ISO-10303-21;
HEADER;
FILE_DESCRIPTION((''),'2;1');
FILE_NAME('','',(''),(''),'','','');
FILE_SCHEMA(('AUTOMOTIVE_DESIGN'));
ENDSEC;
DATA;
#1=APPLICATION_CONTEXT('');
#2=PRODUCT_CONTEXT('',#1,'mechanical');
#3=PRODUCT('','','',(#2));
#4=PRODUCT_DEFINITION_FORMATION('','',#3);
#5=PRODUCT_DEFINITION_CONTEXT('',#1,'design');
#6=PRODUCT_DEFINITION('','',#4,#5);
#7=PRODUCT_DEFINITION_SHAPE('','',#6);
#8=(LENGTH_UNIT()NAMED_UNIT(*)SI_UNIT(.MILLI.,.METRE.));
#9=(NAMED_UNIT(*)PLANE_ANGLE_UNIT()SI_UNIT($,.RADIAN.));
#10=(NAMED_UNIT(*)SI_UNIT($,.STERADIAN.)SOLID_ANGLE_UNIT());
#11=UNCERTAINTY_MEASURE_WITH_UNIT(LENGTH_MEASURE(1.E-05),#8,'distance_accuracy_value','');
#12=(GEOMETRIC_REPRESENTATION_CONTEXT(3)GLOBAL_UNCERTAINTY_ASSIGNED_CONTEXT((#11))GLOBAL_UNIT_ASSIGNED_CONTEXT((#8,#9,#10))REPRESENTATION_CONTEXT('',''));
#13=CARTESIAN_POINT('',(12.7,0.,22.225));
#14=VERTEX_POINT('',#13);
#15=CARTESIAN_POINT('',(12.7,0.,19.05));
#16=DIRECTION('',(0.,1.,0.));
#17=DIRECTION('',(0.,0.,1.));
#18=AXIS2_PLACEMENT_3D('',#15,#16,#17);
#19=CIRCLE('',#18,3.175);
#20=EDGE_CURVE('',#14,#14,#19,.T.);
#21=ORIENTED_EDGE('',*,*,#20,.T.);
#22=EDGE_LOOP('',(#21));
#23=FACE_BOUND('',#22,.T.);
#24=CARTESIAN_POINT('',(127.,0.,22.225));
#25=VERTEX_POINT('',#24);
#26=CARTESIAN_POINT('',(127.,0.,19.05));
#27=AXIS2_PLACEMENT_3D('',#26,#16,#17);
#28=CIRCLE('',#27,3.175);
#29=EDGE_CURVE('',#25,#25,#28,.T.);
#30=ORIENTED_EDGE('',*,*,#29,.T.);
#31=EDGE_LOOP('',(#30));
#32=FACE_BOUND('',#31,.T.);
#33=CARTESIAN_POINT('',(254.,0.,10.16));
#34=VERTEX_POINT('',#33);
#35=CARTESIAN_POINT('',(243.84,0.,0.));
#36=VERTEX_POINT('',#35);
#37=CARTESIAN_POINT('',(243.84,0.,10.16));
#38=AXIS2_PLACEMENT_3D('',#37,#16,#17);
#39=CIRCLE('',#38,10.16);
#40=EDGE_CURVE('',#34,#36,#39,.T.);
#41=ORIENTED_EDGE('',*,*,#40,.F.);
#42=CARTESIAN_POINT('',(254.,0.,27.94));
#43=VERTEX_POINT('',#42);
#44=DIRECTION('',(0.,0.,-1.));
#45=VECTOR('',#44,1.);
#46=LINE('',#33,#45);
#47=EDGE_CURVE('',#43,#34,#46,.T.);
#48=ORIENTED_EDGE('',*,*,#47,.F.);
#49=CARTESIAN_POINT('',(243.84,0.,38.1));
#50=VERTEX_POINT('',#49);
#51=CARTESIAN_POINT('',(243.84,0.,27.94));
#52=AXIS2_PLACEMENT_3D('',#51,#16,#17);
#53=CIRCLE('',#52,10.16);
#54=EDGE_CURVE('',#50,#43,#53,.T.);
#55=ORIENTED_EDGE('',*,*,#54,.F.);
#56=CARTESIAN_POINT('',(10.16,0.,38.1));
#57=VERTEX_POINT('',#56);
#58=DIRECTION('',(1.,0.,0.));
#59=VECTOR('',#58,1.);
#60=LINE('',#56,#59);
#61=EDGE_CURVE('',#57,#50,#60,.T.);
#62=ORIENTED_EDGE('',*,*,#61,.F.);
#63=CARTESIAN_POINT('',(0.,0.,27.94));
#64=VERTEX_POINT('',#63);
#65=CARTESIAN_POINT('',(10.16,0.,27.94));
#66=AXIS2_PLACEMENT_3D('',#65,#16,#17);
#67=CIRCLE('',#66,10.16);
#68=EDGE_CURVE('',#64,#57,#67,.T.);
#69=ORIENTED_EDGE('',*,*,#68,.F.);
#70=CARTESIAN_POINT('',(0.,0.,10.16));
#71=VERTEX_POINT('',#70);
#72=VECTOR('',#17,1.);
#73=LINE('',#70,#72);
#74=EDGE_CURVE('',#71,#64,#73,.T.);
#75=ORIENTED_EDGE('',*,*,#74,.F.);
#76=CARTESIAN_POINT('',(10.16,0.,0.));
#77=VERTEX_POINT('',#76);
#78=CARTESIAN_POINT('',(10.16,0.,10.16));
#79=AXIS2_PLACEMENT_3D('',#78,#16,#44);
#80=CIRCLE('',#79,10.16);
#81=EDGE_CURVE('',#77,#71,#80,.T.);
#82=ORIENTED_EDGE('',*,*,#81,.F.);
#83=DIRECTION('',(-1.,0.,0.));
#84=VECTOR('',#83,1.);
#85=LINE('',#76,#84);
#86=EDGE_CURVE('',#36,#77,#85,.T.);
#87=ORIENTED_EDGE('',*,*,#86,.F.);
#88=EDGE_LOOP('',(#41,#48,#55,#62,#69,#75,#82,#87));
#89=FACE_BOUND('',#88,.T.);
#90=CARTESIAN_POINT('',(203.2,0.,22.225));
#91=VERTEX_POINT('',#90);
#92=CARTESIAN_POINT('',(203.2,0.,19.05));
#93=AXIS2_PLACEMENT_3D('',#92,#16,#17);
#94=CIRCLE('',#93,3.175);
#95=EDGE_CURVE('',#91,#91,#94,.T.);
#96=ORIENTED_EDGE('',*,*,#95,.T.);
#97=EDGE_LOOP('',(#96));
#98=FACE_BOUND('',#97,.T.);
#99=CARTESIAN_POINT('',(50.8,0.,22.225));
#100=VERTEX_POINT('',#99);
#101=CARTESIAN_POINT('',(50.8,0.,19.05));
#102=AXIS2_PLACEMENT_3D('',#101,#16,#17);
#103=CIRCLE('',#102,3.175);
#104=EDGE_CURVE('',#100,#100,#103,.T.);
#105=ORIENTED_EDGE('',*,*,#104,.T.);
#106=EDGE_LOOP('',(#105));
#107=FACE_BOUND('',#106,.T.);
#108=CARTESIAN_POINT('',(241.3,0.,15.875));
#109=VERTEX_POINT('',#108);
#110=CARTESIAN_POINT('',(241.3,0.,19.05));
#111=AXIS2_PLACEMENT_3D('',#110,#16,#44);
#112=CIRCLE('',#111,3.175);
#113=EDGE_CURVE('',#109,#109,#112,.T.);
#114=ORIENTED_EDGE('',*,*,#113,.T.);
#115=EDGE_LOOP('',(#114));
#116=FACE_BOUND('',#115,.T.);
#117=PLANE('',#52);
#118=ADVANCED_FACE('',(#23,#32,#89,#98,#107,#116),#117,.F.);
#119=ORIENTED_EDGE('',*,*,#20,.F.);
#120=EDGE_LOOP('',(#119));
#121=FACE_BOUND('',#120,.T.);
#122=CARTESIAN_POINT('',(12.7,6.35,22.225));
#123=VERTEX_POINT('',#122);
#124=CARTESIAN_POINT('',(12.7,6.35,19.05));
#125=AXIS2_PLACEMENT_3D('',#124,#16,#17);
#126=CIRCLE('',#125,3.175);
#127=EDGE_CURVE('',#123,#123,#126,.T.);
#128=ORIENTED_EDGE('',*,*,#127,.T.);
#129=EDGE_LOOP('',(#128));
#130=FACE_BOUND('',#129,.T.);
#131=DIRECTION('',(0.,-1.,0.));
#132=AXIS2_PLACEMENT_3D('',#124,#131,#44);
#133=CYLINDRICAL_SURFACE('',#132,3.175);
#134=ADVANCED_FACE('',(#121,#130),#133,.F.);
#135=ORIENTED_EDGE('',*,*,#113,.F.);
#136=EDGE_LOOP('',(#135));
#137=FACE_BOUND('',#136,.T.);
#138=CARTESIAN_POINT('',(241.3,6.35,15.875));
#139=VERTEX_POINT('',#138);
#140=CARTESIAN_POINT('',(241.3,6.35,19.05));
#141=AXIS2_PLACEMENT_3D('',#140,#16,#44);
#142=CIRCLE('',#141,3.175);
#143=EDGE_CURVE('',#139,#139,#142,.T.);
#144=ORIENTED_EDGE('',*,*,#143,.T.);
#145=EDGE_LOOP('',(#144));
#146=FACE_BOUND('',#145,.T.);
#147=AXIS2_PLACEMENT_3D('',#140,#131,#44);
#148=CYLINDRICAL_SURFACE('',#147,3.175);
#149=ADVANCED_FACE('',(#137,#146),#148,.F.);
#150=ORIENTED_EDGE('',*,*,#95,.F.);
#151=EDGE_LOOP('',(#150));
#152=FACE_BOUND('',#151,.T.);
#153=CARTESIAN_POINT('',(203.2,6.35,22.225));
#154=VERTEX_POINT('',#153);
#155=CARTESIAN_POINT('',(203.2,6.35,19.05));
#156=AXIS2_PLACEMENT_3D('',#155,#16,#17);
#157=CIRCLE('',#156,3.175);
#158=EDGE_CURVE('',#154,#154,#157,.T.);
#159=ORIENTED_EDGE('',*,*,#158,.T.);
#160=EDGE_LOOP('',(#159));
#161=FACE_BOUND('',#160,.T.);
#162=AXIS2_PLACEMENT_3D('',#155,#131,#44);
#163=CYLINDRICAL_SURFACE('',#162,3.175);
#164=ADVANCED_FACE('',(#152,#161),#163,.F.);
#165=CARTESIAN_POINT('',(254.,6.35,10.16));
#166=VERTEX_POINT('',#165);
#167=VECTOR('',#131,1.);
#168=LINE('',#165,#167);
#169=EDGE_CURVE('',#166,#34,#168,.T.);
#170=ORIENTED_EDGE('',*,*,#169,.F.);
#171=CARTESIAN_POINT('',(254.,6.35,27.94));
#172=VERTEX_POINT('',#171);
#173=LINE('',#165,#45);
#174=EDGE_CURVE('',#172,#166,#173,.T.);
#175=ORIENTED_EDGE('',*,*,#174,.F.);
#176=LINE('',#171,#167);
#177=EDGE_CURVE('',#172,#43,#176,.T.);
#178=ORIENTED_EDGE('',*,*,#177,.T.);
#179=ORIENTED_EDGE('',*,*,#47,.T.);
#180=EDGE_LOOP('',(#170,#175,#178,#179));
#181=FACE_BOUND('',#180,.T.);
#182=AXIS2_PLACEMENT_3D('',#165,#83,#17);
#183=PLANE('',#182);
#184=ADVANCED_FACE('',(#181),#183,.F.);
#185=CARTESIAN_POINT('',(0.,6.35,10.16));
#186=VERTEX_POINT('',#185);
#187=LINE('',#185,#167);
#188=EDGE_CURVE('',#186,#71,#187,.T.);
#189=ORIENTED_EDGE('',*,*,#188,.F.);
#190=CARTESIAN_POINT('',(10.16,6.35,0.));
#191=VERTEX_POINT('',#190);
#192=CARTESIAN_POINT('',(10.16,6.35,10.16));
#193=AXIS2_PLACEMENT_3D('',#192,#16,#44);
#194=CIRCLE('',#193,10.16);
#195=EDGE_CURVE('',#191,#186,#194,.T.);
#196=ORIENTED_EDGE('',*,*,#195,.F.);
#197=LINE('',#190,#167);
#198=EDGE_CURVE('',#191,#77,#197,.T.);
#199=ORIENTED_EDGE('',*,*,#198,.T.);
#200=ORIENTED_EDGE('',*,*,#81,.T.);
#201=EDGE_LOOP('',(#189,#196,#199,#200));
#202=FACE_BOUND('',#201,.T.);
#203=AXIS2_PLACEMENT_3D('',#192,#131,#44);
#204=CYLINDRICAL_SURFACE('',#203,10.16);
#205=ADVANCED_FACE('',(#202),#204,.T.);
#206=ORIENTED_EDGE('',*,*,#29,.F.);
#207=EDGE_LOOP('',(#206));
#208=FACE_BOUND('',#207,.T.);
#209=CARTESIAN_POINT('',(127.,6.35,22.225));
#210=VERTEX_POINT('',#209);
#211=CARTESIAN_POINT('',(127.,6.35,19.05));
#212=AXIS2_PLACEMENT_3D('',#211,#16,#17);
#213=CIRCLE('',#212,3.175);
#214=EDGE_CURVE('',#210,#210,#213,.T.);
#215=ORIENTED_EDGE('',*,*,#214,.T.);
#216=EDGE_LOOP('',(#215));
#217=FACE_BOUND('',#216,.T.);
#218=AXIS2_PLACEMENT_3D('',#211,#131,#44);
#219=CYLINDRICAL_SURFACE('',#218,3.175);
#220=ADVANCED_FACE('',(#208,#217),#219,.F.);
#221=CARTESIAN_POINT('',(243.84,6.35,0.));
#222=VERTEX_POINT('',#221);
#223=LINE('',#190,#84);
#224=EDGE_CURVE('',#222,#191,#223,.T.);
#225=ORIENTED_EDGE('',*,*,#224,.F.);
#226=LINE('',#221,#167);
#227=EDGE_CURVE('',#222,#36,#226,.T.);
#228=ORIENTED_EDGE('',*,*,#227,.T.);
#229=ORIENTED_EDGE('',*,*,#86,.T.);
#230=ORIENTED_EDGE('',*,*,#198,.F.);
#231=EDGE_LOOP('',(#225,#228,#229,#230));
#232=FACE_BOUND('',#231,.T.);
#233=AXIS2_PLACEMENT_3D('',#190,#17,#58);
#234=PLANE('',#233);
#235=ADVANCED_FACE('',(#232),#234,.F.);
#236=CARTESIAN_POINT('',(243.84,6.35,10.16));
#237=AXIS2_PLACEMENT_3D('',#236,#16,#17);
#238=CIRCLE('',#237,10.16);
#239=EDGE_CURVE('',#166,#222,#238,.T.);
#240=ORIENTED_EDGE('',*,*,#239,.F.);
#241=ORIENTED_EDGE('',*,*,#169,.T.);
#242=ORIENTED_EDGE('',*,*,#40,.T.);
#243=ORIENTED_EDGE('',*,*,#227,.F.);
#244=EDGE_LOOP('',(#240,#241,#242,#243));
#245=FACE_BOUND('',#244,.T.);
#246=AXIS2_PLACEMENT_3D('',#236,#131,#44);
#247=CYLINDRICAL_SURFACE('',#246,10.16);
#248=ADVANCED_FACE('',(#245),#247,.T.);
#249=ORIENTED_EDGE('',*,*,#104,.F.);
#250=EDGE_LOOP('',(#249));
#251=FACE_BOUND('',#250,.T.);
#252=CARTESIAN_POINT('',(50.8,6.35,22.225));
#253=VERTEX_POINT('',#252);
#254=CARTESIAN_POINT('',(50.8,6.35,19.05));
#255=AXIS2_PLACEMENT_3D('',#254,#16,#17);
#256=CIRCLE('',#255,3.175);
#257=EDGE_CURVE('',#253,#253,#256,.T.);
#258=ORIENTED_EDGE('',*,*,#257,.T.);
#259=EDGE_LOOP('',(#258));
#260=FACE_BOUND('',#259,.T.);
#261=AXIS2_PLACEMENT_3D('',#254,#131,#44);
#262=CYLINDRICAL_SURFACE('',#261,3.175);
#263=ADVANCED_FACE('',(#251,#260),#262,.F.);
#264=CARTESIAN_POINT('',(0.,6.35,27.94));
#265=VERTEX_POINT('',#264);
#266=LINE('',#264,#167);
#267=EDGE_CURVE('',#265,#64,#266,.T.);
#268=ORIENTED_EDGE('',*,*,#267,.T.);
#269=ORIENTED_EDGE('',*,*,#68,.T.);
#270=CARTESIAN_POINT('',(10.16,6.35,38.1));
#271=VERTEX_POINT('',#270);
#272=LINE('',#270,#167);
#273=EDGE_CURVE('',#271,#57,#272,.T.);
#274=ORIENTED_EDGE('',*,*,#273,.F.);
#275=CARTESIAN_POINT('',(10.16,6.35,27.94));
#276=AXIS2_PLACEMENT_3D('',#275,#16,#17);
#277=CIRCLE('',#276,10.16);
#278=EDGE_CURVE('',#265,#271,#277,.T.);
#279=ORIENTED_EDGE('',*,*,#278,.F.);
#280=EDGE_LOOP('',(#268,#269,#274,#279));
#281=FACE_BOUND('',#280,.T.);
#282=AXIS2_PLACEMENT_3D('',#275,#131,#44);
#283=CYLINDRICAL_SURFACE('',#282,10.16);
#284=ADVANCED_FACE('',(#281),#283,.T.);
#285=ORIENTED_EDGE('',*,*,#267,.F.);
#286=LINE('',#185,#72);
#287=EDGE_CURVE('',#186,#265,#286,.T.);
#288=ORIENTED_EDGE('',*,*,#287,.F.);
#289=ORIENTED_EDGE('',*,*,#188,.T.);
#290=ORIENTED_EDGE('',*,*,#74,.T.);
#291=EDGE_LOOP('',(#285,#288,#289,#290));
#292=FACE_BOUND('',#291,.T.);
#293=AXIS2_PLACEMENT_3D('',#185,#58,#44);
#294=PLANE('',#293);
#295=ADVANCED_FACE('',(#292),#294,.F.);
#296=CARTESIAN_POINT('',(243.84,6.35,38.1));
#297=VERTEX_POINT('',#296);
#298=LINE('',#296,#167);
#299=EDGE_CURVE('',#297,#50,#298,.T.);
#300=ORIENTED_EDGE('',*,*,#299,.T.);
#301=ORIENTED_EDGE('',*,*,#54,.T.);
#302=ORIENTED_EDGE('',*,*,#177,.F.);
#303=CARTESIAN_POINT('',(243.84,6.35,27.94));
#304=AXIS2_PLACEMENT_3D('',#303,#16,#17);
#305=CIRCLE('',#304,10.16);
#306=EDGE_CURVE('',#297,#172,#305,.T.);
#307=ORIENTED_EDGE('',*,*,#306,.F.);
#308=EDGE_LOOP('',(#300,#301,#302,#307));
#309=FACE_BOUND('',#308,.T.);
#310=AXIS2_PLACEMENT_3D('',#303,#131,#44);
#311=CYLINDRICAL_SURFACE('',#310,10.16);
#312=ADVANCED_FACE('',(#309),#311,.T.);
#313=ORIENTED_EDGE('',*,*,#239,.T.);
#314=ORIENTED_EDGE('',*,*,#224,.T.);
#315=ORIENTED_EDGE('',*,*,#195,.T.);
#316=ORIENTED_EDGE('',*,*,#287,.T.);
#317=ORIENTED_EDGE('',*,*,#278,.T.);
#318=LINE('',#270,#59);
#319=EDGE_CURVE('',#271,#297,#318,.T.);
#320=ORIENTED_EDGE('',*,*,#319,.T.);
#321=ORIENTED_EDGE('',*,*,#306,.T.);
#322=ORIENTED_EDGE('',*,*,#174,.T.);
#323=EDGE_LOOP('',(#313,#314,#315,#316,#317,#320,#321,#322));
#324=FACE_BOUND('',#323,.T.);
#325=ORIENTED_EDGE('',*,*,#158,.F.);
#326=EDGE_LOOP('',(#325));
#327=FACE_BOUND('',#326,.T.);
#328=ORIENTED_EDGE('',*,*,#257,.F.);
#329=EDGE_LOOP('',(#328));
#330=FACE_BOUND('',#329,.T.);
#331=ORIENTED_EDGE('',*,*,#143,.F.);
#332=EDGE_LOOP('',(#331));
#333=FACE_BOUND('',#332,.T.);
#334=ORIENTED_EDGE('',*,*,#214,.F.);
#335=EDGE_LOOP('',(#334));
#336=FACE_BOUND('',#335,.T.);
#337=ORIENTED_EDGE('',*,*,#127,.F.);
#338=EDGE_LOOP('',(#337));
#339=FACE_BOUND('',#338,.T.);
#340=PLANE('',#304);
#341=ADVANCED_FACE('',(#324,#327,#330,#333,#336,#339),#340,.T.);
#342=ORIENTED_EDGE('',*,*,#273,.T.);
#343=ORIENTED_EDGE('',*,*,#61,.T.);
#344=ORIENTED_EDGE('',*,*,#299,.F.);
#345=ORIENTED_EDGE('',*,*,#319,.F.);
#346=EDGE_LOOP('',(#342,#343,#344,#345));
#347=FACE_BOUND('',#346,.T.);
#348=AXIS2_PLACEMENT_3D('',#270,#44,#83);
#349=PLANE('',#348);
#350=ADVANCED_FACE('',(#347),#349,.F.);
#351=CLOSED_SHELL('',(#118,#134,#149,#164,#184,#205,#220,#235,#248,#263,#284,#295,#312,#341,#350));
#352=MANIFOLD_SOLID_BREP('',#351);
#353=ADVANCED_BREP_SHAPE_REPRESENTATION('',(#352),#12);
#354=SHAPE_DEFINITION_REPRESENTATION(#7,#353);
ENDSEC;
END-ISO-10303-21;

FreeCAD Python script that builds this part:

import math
import FreeCAD as App
import Part
import Sketcher

V = App.Vector
Q = App.Units.Quantity

doc = App.newDocument("Part")
body = doc.addObject("PartDesign::Body", "Body")

# Sketch on XZ plane
sketch1 = doc.addObject("Sketcher::SketchObject", "Sketch")
body.addObject(sketch1)
sketch1.AttachmentSupport = (doc.XZ_Plane, [""])
sketch1.MapMode = "FlatFace"
sketch1.addGeometry(Part.LineSegment(V(243.8, 0, 0), V(10.2, 0, 0)), False)
sketch1.addGeometry(Part.ArcOfCircle(Part.Circle(V(10.2, 10.2, 0), V(0, 0, 1), 10.2), math.radians(180), math.radians(270)), False)
sketch1.addGeometry(Part.LineSegment(V(0, 10.2, 0), V(0, 27.9, 0)), False)
sketch1.addGeometry(Part.ArcOfCircle(Part.Circle(V(10.2, 27.9, 0), V(0, 0, 1), 10.2), math.radians(90), math.radians(180)), False)
sketch1.addGeometry(Part.LineSegment(V(10.2, 38.1, 0), V(243.8, 38.1, 0)), False)
sketch1.addGeometry(Part.ArcOfCircle(Part.Circle(V(243.8, 27.9, 0), V(0, 0, 1), 10.2), math.radians(0), math.radians(90)), False)
sketch1.addGeometry(Part.LineSegment(V(254, 27.9, 0), V(254, 10.2, 0)), False)
sketch1.addGeometry(Part.ArcOfCircle(Part.Circle(V(243.8, 10.2, 0), V(0, 0, 1), 10.2), math.radians(-90), math.radians(0)), False)
sketch1.addGeometry(Part.Circle(V(241.3, 19.1, 0), V(0, 0, 1), 3.2), False)
sketch1.addGeometry(Part.Circle(V(203.2, 19.1, 0), V(0, 0, 1), 3.2), False)
sketch1.addGeometry(Part.Circle(V(127, 19.1, 0), V(0, 0, 1), 3.2), False)
sketch1.addGeometry(Part.Circle(V(50.8, 19.1, 0), V(0, 0, 1), 3.2), False)
sketch1.addGeometry(Part.Circle(V(12.7, 19.1, 0), V(0, 0, 1), 3.2), False)
sketch1.addConstraint(Sketcher.Constraint("Tangent", 0, 2, 1, 2))
sketch1.addConstraint(Sketcher.Constraint("Tangent", 1, 1, 2, 1))
sketch1.addConstraint(Sketcher.Constraint("Tangent", 2, 2, 3, 2))
sketch1.addConstraint(Sketcher.Constraint("Tangent", 3, 1, 4, 1))
sketch1.addConstraint(Sketcher.Constraint("Tangent", 4, 2, 5, 2))
sketch1.addConstraint(Sketcher.Constraint("Tangent", 5, 1, 6, 1))
sketch1.addConstraint(Sketcher.Constraint("Tangent", 6, 2, 7, 2))
sketch1.addConstraint(Sketcher.Constraint("Tangent", 7, 1, 0, 1))
sketch1.addConstraint(Sketcher.Constraint("Horizontal", 0))
sketch1.addConstraint(Sketcher.Constraint("Vertical", 2))
sketch1.addConstraint(Sketcher.Constraint("Horizontal", 4))
sketch1.addConstraint(Sketcher.Constraint("Vertical", 6))
sketch1.addConstraint(Sketcher.Constraint("Equal", 1, 3))
sketch1.addConstraint(Sketcher.Constraint("Equal", 3, 5))
sketch1.addConstraint(Sketcher.Constraint("Equal", 5, 7))
sketch1.addConstraint(Sketcher.Constraint("Equal", 8, 9))
sketch1.addConstraint(Sketcher.Constraint("Equal", 9, 10))
sketch1.addConstraint(Sketcher.Constraint("Equal", 10, 11))
sketch1.addConstraint(Sketcher.Constraint("Equal", 11, 12))
sketch1.addConstraint(Sketcher.Constraint("PointOnObject", 0, 2, -1))
sketch1.addConstraint(Sketcher.Constraint("PointOnObject", 1, 1, -2))
sketch1.addConstraint(Sketcher.Constraint("Horizontal", 8, 3, 9, 3))
sketch1.addConstraint(Sketcher.Constraint("Horizontal", 9, 3, 10, 3))
sketch1.addConstraint(Sketcher.Constraint("Horizontal", 10, 3, 11, 3))
sketch1.addConstraint(Sketcher.Constraint("Horizontal", 11, 3, 12, 3))
sketch1.addConstraint(Sketcher.Constraint("Radius", 1, Q("0.4 in")))
sketch1.addConstraint(Sketcher.Constraint("Diameter", 8, Q("0.25 in")))
sketch1.addConstraint(Sketcher.Constraint("DistanceX", 0, 2, 0, 1, Q("9.2 in")))
sketch1.addConstraint(Sketcher.Constraint("DistanceY", 2, 1, 2, 2, Q("0.7 in")))
sketch1.addConstraint(Sketcher.Constraint("DistanceX", -1, 1, 9, 3, Q("8 in")))
sketch1.addConstraint(Sketcher.Constraint("DistanceX", -1, 1, 10, 3, Q("5 in")))
sketch1.addConstraint(Sketcher.Constraint("DistanceX", -1, 1, 11, 3, Q("2 in")))
sketch1.addConstraint(Sketcher.Constraint("DistanceX", -1, 1, 8, 3, Q("9.5 in")))
sketch1.addConstraint(Sketcher.Constraint("DistanceX", -1, 1, 12, 3, Q("0.5 in")))
sketch1.addConstraint(Sketcher.Constraint("DistanceY", -1, 1, 8, 3, Q("0.75 in")))
pad1 = doc.addObject("PartDesign::Pad", "Pad")
body.addObject(pad1)
pad1.Profile = sketch1
pad1.Length = Q("0.25 in")
pad1.Reversed = True

doc.recompute()
